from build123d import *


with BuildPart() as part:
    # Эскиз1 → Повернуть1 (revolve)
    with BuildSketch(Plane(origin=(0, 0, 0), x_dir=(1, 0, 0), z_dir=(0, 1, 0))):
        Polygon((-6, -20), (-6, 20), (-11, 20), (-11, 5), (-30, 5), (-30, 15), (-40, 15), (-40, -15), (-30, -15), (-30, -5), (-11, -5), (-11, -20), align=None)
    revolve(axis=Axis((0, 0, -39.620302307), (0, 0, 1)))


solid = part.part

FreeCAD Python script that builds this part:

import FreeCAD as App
import Part
import Sketcher

V = App.Vector


def add_polygon(sketch, points):
    """Adds a closed chain of lines whose ends are joined by coincident constraints."""
    first, n = sketch.GeometryCount, len(points)
    for a, b in zip(points, points[1:] + points[:1]):
        sketch.addGeometry(Part.LineSegment(App.Vector(*a, 0), App.Vector(*b, 0)), False)
    for i in range(n):
        sketch.addConstraint(Sketcher.Constraint("Coincident", first + i, 2, first + (i + 1) % n, 1))

doc = App.newDocument("Part")
body = doc.addObject("PartDesign::Body", "Body")

# Sketch on XZ plane
sketch1 = body.newObject("Sketcher::SketchObject", "Sketch")
sketch1.AttachmentSupport = (doc.getObject("XZ_Plane"), [""])
sketch1.MapMode = "FlatFace"
add_polygon(sketch1, [(-6, 20), (-6, -20), (-11, -20), (-11, -5), (-30, -5), (-30, -15), (-40, -15), (-40, 15), (-30, 15), (-30, 5), (-11, 5), (-11, 20)])  # lines 0-11
sketch1.addConstraint([
    Sketcher.Constraint("Vertical", 0),
    Sketcher.Constraint("Horizontal", 1),
    Sketcher.Constraint("Vertical", 2),
    Sketcher.Constraint("Horizontal", 3),
    Sketcher.Constraint("Vertical", 4),
    Sketcher.Constraint("Horizontal", 5),
    Sketcher.Constraint("Vertical", 6),
    Sketcher.Constraint("Horizontal", 7),
    Sketcher.Constraint("Vertical", 8),
    Sketcher.Constraint("Horizontal", 9),
    Sketcher.Constraint("Vertical", 10),
    Sketcher.Constraint("Horizontal", 11),
    Sketcher.Constraint("Symmetric", 4, 2, 7, 2, -1),
    Sketcher.Constraint("Symmetric", 2, 2, 9, 2, -1),
    Sketcher.Constraint("Equal", 7, 4),
    Sketcher.Constraint("Equal", 2, 10),
    Sketcher.Constraint("DistanceX", 1, 2, 1, 1, 5.0),
    Sketcher.Constraint("DistanceX", 3, 2, 3, 1, 19.0),
    Sketcher.Constraint("DistanceX", 5, 2, 5, 1, 10.0),
    Sketcher.Constraint("DistanceY", 0, 2, 0, 1, 40.0),
    Sketcher.Constraint("DistanceY", 2, 1, 2, 2, 15.0),
    Sketcher.Constraint("DistanceX", 0, 2, -1, 1, 6.0),
])
revolution = body.newObject("PartDesign::Revolution", "Revolution")
revolution.Profile = sketch1
revolution.ReferenceAxis = (sketch1, ["V_Axis"])
revolution.Angle = 360

doc.recompute()
